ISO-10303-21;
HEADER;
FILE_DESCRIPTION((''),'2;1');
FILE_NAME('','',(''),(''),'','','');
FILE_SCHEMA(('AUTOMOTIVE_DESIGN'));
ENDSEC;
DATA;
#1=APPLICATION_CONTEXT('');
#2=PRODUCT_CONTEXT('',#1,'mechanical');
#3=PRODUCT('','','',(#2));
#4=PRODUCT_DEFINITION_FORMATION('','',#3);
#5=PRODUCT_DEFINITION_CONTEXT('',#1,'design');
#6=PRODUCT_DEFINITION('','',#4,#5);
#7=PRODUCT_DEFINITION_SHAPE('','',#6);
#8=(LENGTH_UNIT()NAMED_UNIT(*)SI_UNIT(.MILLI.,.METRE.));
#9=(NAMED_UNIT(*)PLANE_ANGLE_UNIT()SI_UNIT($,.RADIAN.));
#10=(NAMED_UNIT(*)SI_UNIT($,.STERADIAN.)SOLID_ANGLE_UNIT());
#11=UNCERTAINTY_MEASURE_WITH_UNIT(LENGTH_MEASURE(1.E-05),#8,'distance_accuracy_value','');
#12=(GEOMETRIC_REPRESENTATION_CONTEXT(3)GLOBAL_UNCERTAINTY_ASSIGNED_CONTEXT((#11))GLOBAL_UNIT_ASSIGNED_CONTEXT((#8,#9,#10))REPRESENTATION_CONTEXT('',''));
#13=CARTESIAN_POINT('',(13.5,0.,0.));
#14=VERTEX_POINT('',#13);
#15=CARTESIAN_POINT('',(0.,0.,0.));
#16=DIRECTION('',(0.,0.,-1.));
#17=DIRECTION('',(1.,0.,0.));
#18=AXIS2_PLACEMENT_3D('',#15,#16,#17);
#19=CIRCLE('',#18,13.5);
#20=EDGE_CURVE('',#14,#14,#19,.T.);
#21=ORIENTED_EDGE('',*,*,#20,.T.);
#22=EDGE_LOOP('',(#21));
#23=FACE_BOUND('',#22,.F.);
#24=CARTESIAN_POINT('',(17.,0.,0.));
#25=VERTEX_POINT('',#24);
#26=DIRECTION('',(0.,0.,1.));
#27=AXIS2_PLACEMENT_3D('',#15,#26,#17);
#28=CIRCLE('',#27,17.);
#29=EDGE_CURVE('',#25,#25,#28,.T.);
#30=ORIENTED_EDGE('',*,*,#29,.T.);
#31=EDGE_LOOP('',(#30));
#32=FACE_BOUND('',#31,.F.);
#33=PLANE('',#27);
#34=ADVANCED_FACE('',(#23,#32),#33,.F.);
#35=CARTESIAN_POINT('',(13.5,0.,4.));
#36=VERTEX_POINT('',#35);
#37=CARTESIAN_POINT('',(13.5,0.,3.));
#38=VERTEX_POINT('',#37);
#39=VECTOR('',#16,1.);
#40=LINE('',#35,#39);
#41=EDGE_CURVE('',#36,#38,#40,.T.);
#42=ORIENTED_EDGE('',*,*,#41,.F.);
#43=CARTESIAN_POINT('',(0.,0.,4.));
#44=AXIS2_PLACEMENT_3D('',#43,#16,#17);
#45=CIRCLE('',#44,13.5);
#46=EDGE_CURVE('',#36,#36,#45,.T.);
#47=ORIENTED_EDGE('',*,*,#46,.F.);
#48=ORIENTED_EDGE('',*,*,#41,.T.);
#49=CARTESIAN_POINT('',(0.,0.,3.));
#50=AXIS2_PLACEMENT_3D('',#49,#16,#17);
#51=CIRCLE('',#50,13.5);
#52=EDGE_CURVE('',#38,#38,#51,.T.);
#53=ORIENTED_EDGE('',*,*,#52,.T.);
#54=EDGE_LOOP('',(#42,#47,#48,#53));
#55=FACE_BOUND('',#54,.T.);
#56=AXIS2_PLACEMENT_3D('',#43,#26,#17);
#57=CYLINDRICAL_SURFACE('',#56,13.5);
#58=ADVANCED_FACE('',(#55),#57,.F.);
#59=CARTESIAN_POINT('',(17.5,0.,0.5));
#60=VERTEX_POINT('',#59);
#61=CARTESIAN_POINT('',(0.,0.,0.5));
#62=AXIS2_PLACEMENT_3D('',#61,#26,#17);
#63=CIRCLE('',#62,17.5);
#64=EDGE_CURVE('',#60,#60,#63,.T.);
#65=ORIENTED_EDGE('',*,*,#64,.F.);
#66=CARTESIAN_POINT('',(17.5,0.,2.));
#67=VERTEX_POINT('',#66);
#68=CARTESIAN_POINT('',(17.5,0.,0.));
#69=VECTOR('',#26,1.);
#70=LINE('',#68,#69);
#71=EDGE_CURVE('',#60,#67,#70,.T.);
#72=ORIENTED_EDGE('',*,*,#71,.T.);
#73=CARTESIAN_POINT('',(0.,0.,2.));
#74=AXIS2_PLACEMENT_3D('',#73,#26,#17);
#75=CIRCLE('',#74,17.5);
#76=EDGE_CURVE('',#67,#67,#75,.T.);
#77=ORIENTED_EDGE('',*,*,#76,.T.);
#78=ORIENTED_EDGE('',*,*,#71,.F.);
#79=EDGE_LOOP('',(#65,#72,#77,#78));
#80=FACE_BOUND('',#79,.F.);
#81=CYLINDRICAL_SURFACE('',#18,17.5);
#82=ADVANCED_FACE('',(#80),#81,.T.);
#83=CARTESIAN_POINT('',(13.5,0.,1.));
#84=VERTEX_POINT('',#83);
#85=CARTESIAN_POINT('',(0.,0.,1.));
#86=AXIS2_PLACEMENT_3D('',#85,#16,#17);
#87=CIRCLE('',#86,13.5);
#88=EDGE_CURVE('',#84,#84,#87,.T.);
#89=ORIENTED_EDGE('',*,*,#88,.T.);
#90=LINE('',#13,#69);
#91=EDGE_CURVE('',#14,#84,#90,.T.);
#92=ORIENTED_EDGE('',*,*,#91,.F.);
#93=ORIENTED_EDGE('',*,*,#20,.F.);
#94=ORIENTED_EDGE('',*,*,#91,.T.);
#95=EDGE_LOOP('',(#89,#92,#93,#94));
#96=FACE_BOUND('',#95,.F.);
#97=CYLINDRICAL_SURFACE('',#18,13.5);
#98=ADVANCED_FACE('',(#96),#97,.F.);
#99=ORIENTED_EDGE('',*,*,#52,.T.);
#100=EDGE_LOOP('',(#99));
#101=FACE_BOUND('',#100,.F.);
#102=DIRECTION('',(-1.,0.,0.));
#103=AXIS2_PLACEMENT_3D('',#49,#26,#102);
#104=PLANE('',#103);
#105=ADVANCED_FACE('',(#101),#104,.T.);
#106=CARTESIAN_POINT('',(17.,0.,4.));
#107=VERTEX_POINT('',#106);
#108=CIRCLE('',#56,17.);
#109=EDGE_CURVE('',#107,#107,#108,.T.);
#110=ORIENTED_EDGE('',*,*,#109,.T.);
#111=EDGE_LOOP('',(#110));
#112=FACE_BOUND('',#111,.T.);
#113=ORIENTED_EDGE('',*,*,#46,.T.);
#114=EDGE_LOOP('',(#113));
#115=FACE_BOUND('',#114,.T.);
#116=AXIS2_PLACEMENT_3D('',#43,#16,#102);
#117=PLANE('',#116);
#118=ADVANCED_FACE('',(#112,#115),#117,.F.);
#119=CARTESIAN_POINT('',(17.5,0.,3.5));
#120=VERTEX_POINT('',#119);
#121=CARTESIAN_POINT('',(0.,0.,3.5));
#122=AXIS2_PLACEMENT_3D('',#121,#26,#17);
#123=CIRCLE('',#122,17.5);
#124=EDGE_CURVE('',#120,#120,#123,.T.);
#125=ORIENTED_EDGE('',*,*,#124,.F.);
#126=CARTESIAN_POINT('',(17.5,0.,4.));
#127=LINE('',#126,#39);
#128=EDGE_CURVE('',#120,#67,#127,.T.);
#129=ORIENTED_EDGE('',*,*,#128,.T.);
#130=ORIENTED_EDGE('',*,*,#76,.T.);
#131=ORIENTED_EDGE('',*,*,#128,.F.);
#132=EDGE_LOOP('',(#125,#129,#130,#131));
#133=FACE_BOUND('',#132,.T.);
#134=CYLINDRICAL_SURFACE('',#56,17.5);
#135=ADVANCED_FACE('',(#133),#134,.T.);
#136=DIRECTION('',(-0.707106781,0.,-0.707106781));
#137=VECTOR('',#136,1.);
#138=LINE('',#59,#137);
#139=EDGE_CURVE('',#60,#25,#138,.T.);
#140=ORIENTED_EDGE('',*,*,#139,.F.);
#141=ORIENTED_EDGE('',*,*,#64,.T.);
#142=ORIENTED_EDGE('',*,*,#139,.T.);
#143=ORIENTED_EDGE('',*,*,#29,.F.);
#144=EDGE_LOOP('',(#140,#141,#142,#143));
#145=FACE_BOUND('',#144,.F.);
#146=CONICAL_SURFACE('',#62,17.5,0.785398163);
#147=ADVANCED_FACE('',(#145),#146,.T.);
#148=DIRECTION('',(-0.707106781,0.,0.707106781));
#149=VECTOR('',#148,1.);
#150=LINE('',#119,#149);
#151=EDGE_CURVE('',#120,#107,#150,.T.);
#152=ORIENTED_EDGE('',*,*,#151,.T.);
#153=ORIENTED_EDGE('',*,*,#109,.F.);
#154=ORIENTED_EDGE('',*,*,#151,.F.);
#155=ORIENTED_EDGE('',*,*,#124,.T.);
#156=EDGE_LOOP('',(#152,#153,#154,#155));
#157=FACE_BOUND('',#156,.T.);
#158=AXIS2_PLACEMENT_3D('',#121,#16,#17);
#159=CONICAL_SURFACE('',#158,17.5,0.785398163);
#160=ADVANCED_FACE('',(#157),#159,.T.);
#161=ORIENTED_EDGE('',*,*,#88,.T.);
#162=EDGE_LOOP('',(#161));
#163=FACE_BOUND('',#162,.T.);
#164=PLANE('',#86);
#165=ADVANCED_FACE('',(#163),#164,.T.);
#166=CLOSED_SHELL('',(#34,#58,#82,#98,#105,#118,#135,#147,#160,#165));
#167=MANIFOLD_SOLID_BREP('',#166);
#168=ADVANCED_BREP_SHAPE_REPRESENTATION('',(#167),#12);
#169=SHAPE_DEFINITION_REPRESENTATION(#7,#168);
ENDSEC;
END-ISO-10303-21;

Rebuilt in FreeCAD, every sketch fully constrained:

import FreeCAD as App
import Part
import Sketcher


def edges_at(feature, points):
    """Names of the edges that pass closest to the given points."""
    edges = feature.Shape.Edges
    near = lambda p: min(range(len(edges)), key=lambda i: edges[i].distToShape(Part.Vertex(*p))[0])
    return sorted({f"Edge{near(p) + 1}" for p in points})

doc = App.newDocument("Part")
body = doc.addObject("PartDesign::Body", "Body")

# Sketch on XY plane
sketch1 = body.newObject("Sketcher::SketchObject", "Sketch")
sketch1.AttachmentSupport = (doc.getObject("XY_Plane"), [""])
sketch1.MapMode = "FlatFace"
sketch1.addGeometry(Part.Circle(App.Vector(0, 0, 0), App.Vector(0, 0, 1), 18), False)
sketch1.addConstraint(Sketcher.Constraint("Coincident", 0, 3, -1, 1))
sketch1.addConstraint(Sketcher.Constraint("Diameter", 0, 35.0))
pad1 = body.newObject("PartDesign::Pad", "Pad")
pad1.Profile = sketch1
pad1.Length = 2

# Sketch on XY plane
sketch2 = body.newObject("Sketcher::SketchObject", "Sketch001")
sketch2.AttachmentSupport = (doc.getObject("XY_Plane"), [""])
sketch2.MapMode = "FlatFace"
sketch2.addGeometry(Part.Circle(App.Vector(0, 0, 0), App.Vector(0, 0, 1), 14), False)
sketch2.addConstraint(Sketcher.Constraint("Coincident", 0, 3, -1, 1))
sketch2.addConstraint(Sketcher.Constraint("Diameter", 0, 27.0))
pocket1 = body.newObject("PartDesign::Pocket", "Pocket")
pocket1.Profile = sketch2
pocket1.Length = 1
pocket1.Reversed = True
body2 = doc.addObject("PartDesign::Body", "Body001")
doc.recompute()

body2.BaseFeature = body
doc.recompute()

mirroring = doc.addObject("Part::Mirroring", "Mirroring")
mirroring.Source = body
mirroring.Base = App.Vector(0, 0, 2)
mirroring.Normal = App.Vector(0, 0, 1)
body3 = doc.addObject("PartDesign::Body", "Body002")
body3.BaseFeature = mirroring
boolean = body2.newObject("PartDesign::Boolean", "Boolean")
boolean.Type = "Fuse"
boolean.addObjects([body3])
doc.recompute()

chamfer = body2.newObject("PartDesign::Chamfer", "Chamfer")
chamfer.Base = (boolean, edges_at(boolean, [(-17.5, 0, 0), (17.5, 0, 3), (-17.5, 0, 4)]))
chamfer.Size = 0.5
mirroring.Visibility = False

doc.recompute()
